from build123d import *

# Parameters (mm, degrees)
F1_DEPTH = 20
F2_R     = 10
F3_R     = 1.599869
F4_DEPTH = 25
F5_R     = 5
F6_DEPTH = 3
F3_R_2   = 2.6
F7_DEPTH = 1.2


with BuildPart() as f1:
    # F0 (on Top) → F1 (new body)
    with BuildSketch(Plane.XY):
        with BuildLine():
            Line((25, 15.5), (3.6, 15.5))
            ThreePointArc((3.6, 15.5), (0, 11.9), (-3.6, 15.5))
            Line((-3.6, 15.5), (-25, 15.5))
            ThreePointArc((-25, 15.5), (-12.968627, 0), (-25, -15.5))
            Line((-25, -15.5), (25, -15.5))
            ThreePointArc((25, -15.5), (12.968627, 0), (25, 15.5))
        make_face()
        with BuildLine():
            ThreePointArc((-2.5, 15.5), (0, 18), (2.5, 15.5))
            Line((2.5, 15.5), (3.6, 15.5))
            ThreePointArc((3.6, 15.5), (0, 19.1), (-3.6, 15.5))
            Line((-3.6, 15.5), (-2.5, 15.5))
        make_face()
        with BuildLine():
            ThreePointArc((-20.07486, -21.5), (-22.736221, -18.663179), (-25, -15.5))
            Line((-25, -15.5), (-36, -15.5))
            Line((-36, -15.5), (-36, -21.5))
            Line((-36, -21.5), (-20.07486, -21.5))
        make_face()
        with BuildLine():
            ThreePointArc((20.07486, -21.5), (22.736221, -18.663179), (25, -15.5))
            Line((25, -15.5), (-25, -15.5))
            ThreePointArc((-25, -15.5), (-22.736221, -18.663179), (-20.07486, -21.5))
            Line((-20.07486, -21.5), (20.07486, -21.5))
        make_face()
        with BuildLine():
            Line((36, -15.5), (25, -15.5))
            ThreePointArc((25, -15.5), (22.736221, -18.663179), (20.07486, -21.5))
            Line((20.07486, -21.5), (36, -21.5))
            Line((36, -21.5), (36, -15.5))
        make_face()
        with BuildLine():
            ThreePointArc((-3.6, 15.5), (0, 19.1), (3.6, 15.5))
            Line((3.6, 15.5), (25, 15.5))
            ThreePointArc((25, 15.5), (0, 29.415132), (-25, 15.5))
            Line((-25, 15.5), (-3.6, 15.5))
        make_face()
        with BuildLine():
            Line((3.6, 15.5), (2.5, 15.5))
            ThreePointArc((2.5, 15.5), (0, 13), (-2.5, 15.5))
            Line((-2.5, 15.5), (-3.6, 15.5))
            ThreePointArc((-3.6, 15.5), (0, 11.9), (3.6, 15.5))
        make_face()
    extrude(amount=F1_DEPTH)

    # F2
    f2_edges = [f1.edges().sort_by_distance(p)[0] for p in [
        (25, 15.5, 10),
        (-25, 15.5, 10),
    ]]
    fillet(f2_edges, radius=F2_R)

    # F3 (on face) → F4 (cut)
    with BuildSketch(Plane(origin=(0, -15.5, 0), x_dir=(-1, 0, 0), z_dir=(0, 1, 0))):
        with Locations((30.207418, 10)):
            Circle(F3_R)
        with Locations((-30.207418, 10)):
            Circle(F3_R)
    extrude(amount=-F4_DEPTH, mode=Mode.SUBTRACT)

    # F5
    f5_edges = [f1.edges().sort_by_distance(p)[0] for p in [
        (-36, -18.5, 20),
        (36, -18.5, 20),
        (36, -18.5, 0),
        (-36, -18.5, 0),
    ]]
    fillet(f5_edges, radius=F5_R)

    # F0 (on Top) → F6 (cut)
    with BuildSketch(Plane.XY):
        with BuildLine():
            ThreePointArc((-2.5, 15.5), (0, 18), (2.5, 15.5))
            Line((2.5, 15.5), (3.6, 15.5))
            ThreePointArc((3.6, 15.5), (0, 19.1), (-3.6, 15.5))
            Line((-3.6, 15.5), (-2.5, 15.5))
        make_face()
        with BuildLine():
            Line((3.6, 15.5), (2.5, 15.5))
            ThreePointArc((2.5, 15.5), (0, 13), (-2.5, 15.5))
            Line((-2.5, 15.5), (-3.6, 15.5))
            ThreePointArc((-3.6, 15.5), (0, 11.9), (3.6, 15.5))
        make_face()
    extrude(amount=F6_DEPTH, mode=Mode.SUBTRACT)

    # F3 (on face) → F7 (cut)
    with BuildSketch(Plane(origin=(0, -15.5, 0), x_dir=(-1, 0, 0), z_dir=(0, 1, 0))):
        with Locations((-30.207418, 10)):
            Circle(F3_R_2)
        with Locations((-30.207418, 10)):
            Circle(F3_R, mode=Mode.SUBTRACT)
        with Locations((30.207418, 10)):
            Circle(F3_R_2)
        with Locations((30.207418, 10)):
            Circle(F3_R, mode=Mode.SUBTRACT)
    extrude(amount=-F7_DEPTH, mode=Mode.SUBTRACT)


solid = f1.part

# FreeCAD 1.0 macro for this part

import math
import FreeCAD as App
import Part
import Sketcher

V = App.Vector
Q = App.Units.Quantity


def edges_at(feature, points):
    """Names of the edges that pass closest to the given points."""
    edges = feature.Shape.Edges
    near = lambda p: min(range(len(edges)), key=lambda i: edges[i].distToShape(Part.Vertex(*p))[0])
    return sorted({f"Edge{near(p) + 1}" for p in points})

doc = App.newDocument("Part")
params = doc.addObject("Spreadsheet::Sheet", "Params")
for row, (alias, value) in enumerate([
    ("sketch1_diameter", "5 mm"),
    ("sketch1_radius", "16 mm"),
    ("sketch1_width", "11 mm"),
    ("sketch1_width2", "72 mm"),
    ("sketch1_height", "6 mm"),
    ("pad1_length", "20 mm"),
    ("fillet_radius", "10 mm"),
    ("pocket1_length", "25 mm"),
    ("fillet2_radius", "5 mm"),
    ("sketch3_diameter", "5 mm"),
    ("sketch3_diameter2", "7.2 mm"),
    ("pocket2_length", "3 mm"),
    ("sketch4_diameter", "5.2 mm"),
    ("pocket3_length", "1.2 mm"),
], start=1):
    params.set(f"A{row}", alias)
    params.set(f"B{row}", "=" + value)
    params.setAlias(f"B{row}", alias)

body = doc.addObject("PartDesign::Body", "Body")

# Sketch on XY plane
sketch1 = body.newObject("Sketcher::SketchObject", "Sketch")
sketch1.AttachmentSupport = (doc.getObject("XY_Plane"), [""])
sketch1.MapMode = "FlatFace"
sketch1.addGeometry([
    Part.ArcOfCircle(Part.Circle(V(29, 0, 0), V(0, 0, 1), 16), math.radians(104), math.radians(256)),  # 0
    Part.ArcOfCircle(Part.Circle(V(0, 0, 0), V(0, 0, 1), 29.4), math.radians(32), math.radians(148)),  # 1
    Part.ArcOfCircle(Part.Circle(V(-29, 0, 0), V(0, 0, 1), 16), math.radians(-76), math.radians(76)),  # 2
    Part.LineSegment(V(-25, -15.5, 0), V(-36, -15.5, 0)),  # 3
    Part.LineSegment(V(-36, -15.5, 0), V(-36, -21.5, 0)),  # 4
    Part.LineSegment(V(-36, -21.5, 0), V(36, -21.5, 0)),  # 5
    Part.LineSegment(V(36, -21.5, 0), V(36, -15.5, 0)),  # 6
    Part.LineSegment(V(36, -15.5, 0), V(25, -15.5, 0)),  # 7
    Part.Circle(V(0, 15.5, 0), V(0, 0, 1), 2.5),  # 8
], False)
sketch1.addConstraint([
    Sketcher.Constraint("Coincident", 0, 1, 1, 1),
    Sketcher.Constraint("Coincident", 1, 2, 2, 2),
    Sketcher.Constraint("Coincident", 2, 1, 3, 1),
    Sketcher.Constraint("Coincident", 3, 2, 4, 1),
    Sketcher.Constraint("Coincident", 4, 2, 5, 1),
    Sketcher.Constraint("Coincident", 5, 2, 6, 1),
    Sketcher.Constraint("Coincident", 6, 2, 7, 1),
    Sketcher.Constraint("Coincident", 7, 2, 0, 2),
    Sketcher.Constraint("Horizontal", 3),
    Sketcher.Constraint("Vertical", 4),
    Sketcher.Constraint("Horizontal", 5),
    Sketcher.Constraint("Vertical", 6),
    Sketcher.Constraint("Horizontal", 7),
    Sketcher.Constraint("Coincident", 1, 3, -1, 1),
    Sketcher.Constraint("Equal", 0, 2),
    Sketcher.Constraint("Symmetric", 0, 3, 2, 3, -1, 1),
    Sketcher.Constraint("Symmetric", 3, 2, 6, 2, -2),
    Sketcher.Constraint("Symmetric", 1, 2, 2, 1, -1),
    Sketcher.Constraint("PointOnObject", 8, 3, -2),
    Sketcher.Constraint("Horizontal", 8, 3, 0, 1),
    Sketcher.Constraint("Diameter", 8, Q("5 mm")),
    Sketcher.Constraint("Radius", 0, Q("16 mm")),
    Sketcher.Constraint("DistanceX", 3, 2, 3, 1, Q("11 mm")),
    Sketcher.Constraint("DistanceX", 5, 1, 5, 2, Q("72 mm")),
    Sketcher.Constraint("DistanceY", 4, 2, 4, 1, Q("6 mm")),
    Sketcher.Constraint("DistanceY", 2, 1, 1, 2, Q("31 mm")),
])
sketch1.setExpression("Constraints[20]", "Params.sketch1_diameter")
sketch1.setExpression("Constraints[21]", "Params.sketch1_radius")
sketch1.setExpression("Constraints[22]", "Params.sketch1_width")
sketch1.setExpression("Constraints[23]", "Params.sketch1_width2")
sketch1.setExpression("Constraints[24]", "Params.sketch1_height")
pad1 = body.newObject("PartDesign::Pad", "Pad")
pad1.Profile = sketch1
pad1.setExpression("Length", "Params.pad1_length")
doc.recompute()

fillet = body.newObject("PartDesign::Fillet", "Fillet")
fillet.Base = (pad1, edges_at(pad1, [(25, 15.5, 10), (-25, 15.5, 10)]))
fillet.setExpression("Radius", "Params.fillet_radius")

# Sketch on XZ plane
sketch2 = body.newObject("Sketcher::SketchObject", "Sketch001")
sketch2.AttachmentSupport = (doc.getObject("XZ_Plane"), [""])
sketch2.MapMode = "FlatFace"
sketch2.AttachmentOffset = App.Placement(V(0, 0, 15.5), App.Rotation())
sketch2.addGeometry([
    Part.Circle(V(-30.2, 10, 0), V(0, 0, 1), 1.6),
    Part.Circle(V(30.2, 10, 0), V(0, 0, 1), 1.6),
], False)
sketch2.addConstraint([
    Sketcher.Constraint("Equal", 0, 1),
    Sketcher.Constraint("Symmetric", 0, 3, 1, 3, -2),
    Sketcher.Constraint("DistanceY", -1, 1, 0, 3, Q("10 mm")),
    Sketcher.Constraint("Diameter", 0, Q("3.199738 mm")),
    Sketcher.Constraint("DistanceX", 0, 3, -1, 1, Q("30.207418 mm")),
])
pocket1 = body.newObject("PartDesign::Pocket", "Pocket")
pocket1.Profile = sketch2
pocket1.setExpression("Length", "Params.pocket1_length")
pocket1.Reversed = True
doc.recompute()

fillet2 = body.newObject("PartDesign::Fillet", "Fillet001")
fillet2.Base = (pocket1, edges_at(pocket1, [
    (-36, -18.5, 20),
    (36, -18.5, 20),
    (36, -18.5, 0),
    (-36, -18.5, 0),
]))
fillet2.setExpression("Radius", "Params.fillet2_radius")

# Sketch on XY plane
sketch3 = body.newObject("Sketcher::SketchObject", "Sketch002")
sketch3.AttachmentSupport = (doc.getObject("XY_Plane"), [""])
sketch3.MapMode = "FlatFace"
sketch3.addGeometry([
    Part.Circle(V(0, 15.5, 0), V(0, 0, 1), 3.6),
    Part.Circle(V(0, 15.5, 0), V(0, 0, 1), 2.5),
], False)
sketch3.addConstraint([
    Sketcher.Constraint("Coincident", 1, 3, 0, 3),
    Sketcher.Constraint("PointOnObject", 0, 3, -2),
    Sketcher.Constraint("Diameter", 1, Q("5 mm")),
    Sketcher.Constraint("Diameter", 0, Q("7.2 mm")),
    Sketcher.Constraint("DistanceY", -1, 1, 0, 3, Q("15.5 mm")),
])
sketch3.setExpression("Constraints[2]", "Params.sketch3_diameter")
sketch3.setExpression("Constraints[3]", "Params.sketch3_diameter2")
pocket2 = body.newObject("PartDesign::Pocket", "Pocket001")
pocket2.Profile = sketch3
pocket2.setExpression("Length", "Params.pocket2_length")
pocket2.Reversed = True

# Sketch on XZ plane
sketch4 = body.newObject("Sketcher::SketchObject", "Sketch003")
sketch4.AttachmentSupport = (doc.getObject("XZ_Plane"), [""])
sketch4.MapMode = "FlatFace"
sketch4.AttachmentOffset = App.Placement(V(0, 0, 15.5), App.Rotation())
sketch4.addGeometry([
    Part.Circle(V(30.2, 10, 0), V(0, 0, 1), 2.6),
    Part.Circle(V(30.2, 10, 0), V(0, 0, 1), 1.6),
    Part.Circle(V(-30.2, 10, 0), V(0, 0, 1), 2.6),
    Part.Circle(V(-30.2, 10, 0), V(0, 0, 1), 1.6),
], False)
sketch4.addConstraint([
    Sketcher.Constraint("Coincident", 1, 3, 0, 3),
    Sketcher.Constraint("Coincident", 3, 3, 2, 3),
    Sketcher.Constraint("Equal", 0, 2),
    Sketcher.Constraint("Equal", 1, 3),
    Sketcher.Constraint("Symmetric", 0, 3, 2, 3, -2),
    Sketcher.Constraint("Diameter", 0, Q("5.2 mm")),
    Sketcher.Constraint("DistanceY", -1, 1, 0, 3, Q("10 mm")),
    Sketcher.Constraint("Diameter", 1, Q("3.199738 mm")),
    Sketcher.Constraint("DistanceX", -1, 1, 0, 3, Q("30.207418 mm")),
])
sketch4.setExpression("Constraints[5]", "Params.sketch4_diameter")
pocket3 = body.newObject("PartDesign::Pocket", "Pocket002")
pocket3.Profile = sketch4
pocket3.setExpression("Length", "Params.pocket3_length")
pocket3.Reversed = True

doc.recompute()
